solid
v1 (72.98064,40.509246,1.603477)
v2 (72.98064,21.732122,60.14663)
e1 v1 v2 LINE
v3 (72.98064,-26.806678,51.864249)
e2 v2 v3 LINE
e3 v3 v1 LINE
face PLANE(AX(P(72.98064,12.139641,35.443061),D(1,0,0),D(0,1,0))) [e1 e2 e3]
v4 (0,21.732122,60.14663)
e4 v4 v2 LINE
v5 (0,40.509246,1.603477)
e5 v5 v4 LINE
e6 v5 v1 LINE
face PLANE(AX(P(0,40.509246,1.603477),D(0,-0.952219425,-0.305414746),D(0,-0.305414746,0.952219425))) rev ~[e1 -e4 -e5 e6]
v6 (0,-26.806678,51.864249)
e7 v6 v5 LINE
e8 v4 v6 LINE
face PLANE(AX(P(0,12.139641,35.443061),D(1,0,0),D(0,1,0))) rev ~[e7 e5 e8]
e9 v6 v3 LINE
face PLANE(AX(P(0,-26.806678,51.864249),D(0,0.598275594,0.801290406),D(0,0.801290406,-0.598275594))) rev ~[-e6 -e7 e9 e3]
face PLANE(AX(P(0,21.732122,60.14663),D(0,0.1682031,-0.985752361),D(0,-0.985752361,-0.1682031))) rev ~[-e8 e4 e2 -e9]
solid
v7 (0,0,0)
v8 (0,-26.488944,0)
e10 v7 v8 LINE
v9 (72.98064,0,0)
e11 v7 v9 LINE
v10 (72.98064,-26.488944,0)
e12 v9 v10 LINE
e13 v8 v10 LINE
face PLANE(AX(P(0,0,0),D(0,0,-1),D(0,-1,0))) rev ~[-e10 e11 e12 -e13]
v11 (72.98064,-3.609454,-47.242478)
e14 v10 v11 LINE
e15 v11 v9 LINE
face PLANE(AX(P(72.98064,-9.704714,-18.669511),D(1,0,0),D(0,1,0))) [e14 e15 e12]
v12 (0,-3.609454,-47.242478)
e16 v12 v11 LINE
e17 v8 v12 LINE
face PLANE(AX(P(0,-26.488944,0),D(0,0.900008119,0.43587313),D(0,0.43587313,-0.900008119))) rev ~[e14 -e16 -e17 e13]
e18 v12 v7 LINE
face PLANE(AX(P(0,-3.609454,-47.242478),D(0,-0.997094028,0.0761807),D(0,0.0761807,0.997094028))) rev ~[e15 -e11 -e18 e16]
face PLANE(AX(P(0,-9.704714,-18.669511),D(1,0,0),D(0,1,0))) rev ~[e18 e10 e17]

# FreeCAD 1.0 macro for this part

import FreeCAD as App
import Part
import Sketcher

V = App.Vector
Q = App.Units.Quantity


def add_polygon(sketch, points):
    """Adds a closed chain of lines whose ends are joined by coincident constraints."""
    first, n = sketch.GeometryCount, len(points)
    for a, b in zip(points, points[1:] + points[:1]):
        sketch.addGeometry(Part.LineSegment(App.Vector(*a, 0), App.Vector(*b, 0)), False)
    for i in range(n):
        sketch.addConstraint(Sketcher.Constraint("Coincident", first + i, 2, first + (i + 1) % n, 1))

doc = App.newDocument("Part")
body = doc.addObject("PartDesign::Body", "Body")
body.AllowCompound = True

# Sketch on YZ plane
sketch1 = body.newObject("Sketcher::SketchObject", "Sketch")
sketch1.AttachmentSupport = (doc.getObject("YZ_Plane"), [""])
sketch1.MapMode = "FlatFace"
add_polygon(sketch1, [(41, 2), (22, 60), (-27, 52)])  # lines 0-2
add_polygon(sketch1, [(0, 0), (-26, 0), (-4, -47)])  # lines 3-5
sketch1.addConstraint(Sketcher.Constraint("Horizontal", 3))
sketch1.addConstraint(Sketcher.Constraint("Coincident", 5, 2, -1, 1))
sketch1.addConstraint(Sketcher.Constraint("DistanceX", 1, 2, 0, 2, Q("48.5388 mm")))
sketch1.addConstraint(Sketcher.Constraint("DistanceX", 4, 2, 2, 2, Q("44.1187 mm")))
sketch1.addConstraint(Sketcher.Constraint("Distance", 0, Q("61.480738 mm")))
sketch1.addConstraint(Sketcher.Constraint("Distance", 1, Q("49.240359 mm")))
sketch1.addConstraint(Sketcher.Constraint("Distance", 4, Q("52.491169 mm")))
sketch1.addConstraint(Sketcher.Constraint("DistanceX", 3, 2, 3, 1, Q("26.488944 mm")))
sketch1.addConstraint(Sketcher.Constraint("DistanceY", -1, 1, 0, 2, Q("60.14663 mm")))
sketch1.addConstraint(Sketcher.Constraint("DistanceX", 1, 2, -1, 1, Q("26.806678 mm")))
sketch1.addConstraint(Sketcher.Constraint("DistanceX", 3, 2, 2, 2, Q("66.99819 mm")))
pad1 = body.newObject("PartDesign::Pad", "Pad")
pad1.Profile = sketch1
pad1.Length = 72.98064

doc.recompute()
